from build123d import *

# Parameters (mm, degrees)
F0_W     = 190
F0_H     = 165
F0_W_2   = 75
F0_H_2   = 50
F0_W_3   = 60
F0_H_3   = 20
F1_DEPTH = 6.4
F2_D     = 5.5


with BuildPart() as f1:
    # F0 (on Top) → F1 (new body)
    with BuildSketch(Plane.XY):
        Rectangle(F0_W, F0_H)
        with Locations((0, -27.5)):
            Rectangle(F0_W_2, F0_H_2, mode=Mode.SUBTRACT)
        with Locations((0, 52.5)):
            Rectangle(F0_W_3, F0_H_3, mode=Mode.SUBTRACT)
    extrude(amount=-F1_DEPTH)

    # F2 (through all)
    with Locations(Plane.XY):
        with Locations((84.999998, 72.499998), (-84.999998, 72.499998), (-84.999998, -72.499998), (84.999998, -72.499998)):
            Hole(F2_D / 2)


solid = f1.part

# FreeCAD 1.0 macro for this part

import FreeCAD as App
import Part
import Sketcher

V = App.Vector
Q = App.Units.Quantity

doc = App.newDocument("Part")
body = doc.addObject("PartDesign::Body", "Body")

sketch1 = body.newObject("Sketcher::SketchObject", "Sketch")
sketch1.AttachmentSupport = (doc.getObject("XY_Plane"), [""])
sketch1.MapMode = "FlatFace"
sketch1.addGeometry(Part.LineSegment(V(-95, 82, 0), V(-95, -82, 0)), False)
sketch1.addGeometry(Part.LineSegment(V(-95, -82, 0), V(95, -82, 0)), False)
sketch1.addGeometry(Part.LineSegment(V(95, -82, 0), V(95, 82, 0)), False)
sketch1.addGeometry(Part.LineSegment(V(95, 82, 0), V(-95, 82, 0)), False)
sketch1.addGeometry(Part.LineSegment(V(38, -52, 0), V(-38, -52, 0)), False)
sketch1.addGeometry(Part.LineSegment(V(-38, -52, 0), V(-38, -2, 0)), False)
sketch1.addGeometry(Part.LineSegment(V(-38, -2, 0), V(38, -2, 0)), False)
sketch1.addGeometry(Part.LineSegment(V(38, -2, 0), V(38, -52, 0)), False)
sketch1.addGeometry(Part.LineSegment(V(30, 42, 0), V(-30, 42, 0)), False)
sketch1.addGeometry(Part.LineSegment(V(-30, 42, 0), V(-30, 62, 0)), False)
sketch1.addGeometry(Part.LineSegment(V(-30, 62, 0), V(30, 62, 0)), False)
sketch1.addGeometry(Part.LineSegment(V(30, 62, 0), V(30, 42, 0)), False)
sketch1.addConstraint(Sketcher.Constraint("Coincident", 0, 2, 1, 1))
sketch1.addConstraint(Sketcher.Constraint("Coincident", 1, 2, 2, 1))
sketch1.addConstraint(Sketcher.Constraint("Coincident", 2, 2, 3, 1))
sketch1.addConstraint(Sketcher.Constraint("Coincident", 3, 2, 0, 1))
sketch1.addConstraint(Sketcher.Constraint("Coincident", 4, 2, 5, 1))
sketch1.addConstraint(Sketcher.Constraint("Coincident", 5, 2, 6, 1))
sketch1.addConstraint(Sketcher.Constraint("Coincident", 6, 2, 7, 1))
sketch1.addConstraint(Sketcher.Constraint("Coincident", 7, 2, 4, 1))
sketch1.addConstraint(Sketcher.Constraint("Coincident", 8, 2, 9, 1))
sketch1.addConstraint(Sketcher.Constraint("Coincident", 9, 2, 10, 1))
sketch1.addConstraint(Sketcher.Constraint("Coincident", 10, 2, 11, 1))
sketch1.addConstraint(Sketcher.Constraint("Coincident", 11, 2, 8, 1))
sketch1.addConstraint(Sketcher.Constraint("Vertical", 0))
sketch1.addConstraint(Sketcher.Constraint("Horizontal", 1))
sketch1.addConstraint(Sketcher.Constraint("Vertical", 2))
sketch1.addConstraint(Sketcher.Constraint("Horizontal", 3))
sketch1.addConstraint(Sketcher.Constraint("Horizontal", 4))
sketch1.addConstraint(Sketcher.Constraint("Vertical", 5))
sketch1.addConstraint(Sketcher.Constraint("Horizontal", 6))
sketch1.addConstraint(Sketcher.Constraint("Vertical", 7))
sketch1.addConstraint(Sketcher.Constraint("Horizontal", 8))
sketch1.addConstraint(Sketcher.Constraint("Vertical", 9))
sketch1.addConstraint(Sketcher.Constraint("Horizontal", 10))
sketch1.addConstraint(Sketcher.Constraint("Vertical", 11))
sketch1.addConstraint(Sketcher.Constraint("Symmetric", 0, 2, 2, 2, -1, 1))
sketch1.addConstraint(Sketcher.Constraint("DistanceX", 1, 1, 1, 2, Q("190 mm")))
sketch1.addConstraint(Sketcher.Constraint("DistanceX", 4, 2, 4, 1, Q("75 mm")))
sketch1.addConstraint(Sketcher.Constraint("DistanceX", 8, 2, 8, 1, Q("60 mm")))
sketch1.addConstraint(Sketcher.Constraint("DistanceY", 0, 2, 0, 1, Q("165 mm")))
sketch1.addConstraint(Sketcher.Constraint("DistanceY", 5, 1, 5, 2, Q("50 mm")))
sketch1.addConstraint(Sketcher.Constraint("DistanceY", 9, 1, 9, 2, Q("20 mm")))
sketch1.addConstraint(Sketcher.Constraint("DistanceX", 8, 2, -1, 1, Q("30 mm")))
sketch1.addConstraint(Sketcher.Constraint("DistanceY", 0, 2, 4, 2, Q("30 mm")))
sketch1.addConstraint(Sketcher.Constraint("DistanceY", 5, 2, 8, 2, Q("45 mm")))
sketch1.addConstraint(Sketcher.Constraint("DistanceX", 4, 2, -1, 1, Q("37.5 mm")))
pad1 = body.newObject("PartDesign::Pad", "Pad")
pad1.Profile = sketch1
pad1.Length = 6.4
pad1.Reversed = True

sketch2 = body.newObject("Sketcher::SketchObject", "Sketch001")
sketch2.AttachmentSupport = (doc.getObject("XY_Plane"), [""])
sketch2.MapMode = "FlatFace"
sketch2.addGeometry(Part.Circle(V(85, 72.5, 0), V(0, 0, 1), 2.8), False)
sketch2.addGeometry(Part.Circle(V(-85, 72.5, 0), V(0, 0, 1), 2.8), False)
sketch2.addGeometry(Part.Circle(V(-85, -72.5, 0), V(0, 0, 1), 2.8), False)
sketch2.addGeometry(Part.Circle(V(85, -72.5, 0), V(0, 0, 1), 2.8), False)
sketch2.addConstraint(Sketcher.Constraint("Equal", 0, 1))
sketch2.addConstraint(Sketcher.Constraint("Equal", 1, 2))
sketch2.addConstraint(Sketcher.Constraint("Equal", 2, 3))
sketch2.addConstraint(Sketcher.Constraint("Symmetric", 0, 3, 2, 3, -1, 1))
sketch2.addConstraint(Sketcher.Constraint("Symmetric", 1, 3, 3, 3, -1, 1))
sketch2.addConstraint(Sketcher.Constraint("Symmetric", 0, 3, 1, 3, -2))
sketch2.addConstraint(Sketcher.Constraint("Diameter", 0, Q("5.5 mm")))
sketch2.addConstraint(Sketcher.Constraint("DistanceX", -1, 1, 0, 3, Q("84.999998 mm")))
sketch2.addConstraint(Sketcher.Constraint("DistanceY", -1, 1, 0, 3, Q("72.499998 mm")))
doc.recompute()
hole = body.newObject("PartDesign::Hole", "Hole")
hole.Profile = sketch2
hole.ThreadType = "None"
hole.Diameter = 5.5
hole.DepthType = "ThroughAll"

doc.recompute()
